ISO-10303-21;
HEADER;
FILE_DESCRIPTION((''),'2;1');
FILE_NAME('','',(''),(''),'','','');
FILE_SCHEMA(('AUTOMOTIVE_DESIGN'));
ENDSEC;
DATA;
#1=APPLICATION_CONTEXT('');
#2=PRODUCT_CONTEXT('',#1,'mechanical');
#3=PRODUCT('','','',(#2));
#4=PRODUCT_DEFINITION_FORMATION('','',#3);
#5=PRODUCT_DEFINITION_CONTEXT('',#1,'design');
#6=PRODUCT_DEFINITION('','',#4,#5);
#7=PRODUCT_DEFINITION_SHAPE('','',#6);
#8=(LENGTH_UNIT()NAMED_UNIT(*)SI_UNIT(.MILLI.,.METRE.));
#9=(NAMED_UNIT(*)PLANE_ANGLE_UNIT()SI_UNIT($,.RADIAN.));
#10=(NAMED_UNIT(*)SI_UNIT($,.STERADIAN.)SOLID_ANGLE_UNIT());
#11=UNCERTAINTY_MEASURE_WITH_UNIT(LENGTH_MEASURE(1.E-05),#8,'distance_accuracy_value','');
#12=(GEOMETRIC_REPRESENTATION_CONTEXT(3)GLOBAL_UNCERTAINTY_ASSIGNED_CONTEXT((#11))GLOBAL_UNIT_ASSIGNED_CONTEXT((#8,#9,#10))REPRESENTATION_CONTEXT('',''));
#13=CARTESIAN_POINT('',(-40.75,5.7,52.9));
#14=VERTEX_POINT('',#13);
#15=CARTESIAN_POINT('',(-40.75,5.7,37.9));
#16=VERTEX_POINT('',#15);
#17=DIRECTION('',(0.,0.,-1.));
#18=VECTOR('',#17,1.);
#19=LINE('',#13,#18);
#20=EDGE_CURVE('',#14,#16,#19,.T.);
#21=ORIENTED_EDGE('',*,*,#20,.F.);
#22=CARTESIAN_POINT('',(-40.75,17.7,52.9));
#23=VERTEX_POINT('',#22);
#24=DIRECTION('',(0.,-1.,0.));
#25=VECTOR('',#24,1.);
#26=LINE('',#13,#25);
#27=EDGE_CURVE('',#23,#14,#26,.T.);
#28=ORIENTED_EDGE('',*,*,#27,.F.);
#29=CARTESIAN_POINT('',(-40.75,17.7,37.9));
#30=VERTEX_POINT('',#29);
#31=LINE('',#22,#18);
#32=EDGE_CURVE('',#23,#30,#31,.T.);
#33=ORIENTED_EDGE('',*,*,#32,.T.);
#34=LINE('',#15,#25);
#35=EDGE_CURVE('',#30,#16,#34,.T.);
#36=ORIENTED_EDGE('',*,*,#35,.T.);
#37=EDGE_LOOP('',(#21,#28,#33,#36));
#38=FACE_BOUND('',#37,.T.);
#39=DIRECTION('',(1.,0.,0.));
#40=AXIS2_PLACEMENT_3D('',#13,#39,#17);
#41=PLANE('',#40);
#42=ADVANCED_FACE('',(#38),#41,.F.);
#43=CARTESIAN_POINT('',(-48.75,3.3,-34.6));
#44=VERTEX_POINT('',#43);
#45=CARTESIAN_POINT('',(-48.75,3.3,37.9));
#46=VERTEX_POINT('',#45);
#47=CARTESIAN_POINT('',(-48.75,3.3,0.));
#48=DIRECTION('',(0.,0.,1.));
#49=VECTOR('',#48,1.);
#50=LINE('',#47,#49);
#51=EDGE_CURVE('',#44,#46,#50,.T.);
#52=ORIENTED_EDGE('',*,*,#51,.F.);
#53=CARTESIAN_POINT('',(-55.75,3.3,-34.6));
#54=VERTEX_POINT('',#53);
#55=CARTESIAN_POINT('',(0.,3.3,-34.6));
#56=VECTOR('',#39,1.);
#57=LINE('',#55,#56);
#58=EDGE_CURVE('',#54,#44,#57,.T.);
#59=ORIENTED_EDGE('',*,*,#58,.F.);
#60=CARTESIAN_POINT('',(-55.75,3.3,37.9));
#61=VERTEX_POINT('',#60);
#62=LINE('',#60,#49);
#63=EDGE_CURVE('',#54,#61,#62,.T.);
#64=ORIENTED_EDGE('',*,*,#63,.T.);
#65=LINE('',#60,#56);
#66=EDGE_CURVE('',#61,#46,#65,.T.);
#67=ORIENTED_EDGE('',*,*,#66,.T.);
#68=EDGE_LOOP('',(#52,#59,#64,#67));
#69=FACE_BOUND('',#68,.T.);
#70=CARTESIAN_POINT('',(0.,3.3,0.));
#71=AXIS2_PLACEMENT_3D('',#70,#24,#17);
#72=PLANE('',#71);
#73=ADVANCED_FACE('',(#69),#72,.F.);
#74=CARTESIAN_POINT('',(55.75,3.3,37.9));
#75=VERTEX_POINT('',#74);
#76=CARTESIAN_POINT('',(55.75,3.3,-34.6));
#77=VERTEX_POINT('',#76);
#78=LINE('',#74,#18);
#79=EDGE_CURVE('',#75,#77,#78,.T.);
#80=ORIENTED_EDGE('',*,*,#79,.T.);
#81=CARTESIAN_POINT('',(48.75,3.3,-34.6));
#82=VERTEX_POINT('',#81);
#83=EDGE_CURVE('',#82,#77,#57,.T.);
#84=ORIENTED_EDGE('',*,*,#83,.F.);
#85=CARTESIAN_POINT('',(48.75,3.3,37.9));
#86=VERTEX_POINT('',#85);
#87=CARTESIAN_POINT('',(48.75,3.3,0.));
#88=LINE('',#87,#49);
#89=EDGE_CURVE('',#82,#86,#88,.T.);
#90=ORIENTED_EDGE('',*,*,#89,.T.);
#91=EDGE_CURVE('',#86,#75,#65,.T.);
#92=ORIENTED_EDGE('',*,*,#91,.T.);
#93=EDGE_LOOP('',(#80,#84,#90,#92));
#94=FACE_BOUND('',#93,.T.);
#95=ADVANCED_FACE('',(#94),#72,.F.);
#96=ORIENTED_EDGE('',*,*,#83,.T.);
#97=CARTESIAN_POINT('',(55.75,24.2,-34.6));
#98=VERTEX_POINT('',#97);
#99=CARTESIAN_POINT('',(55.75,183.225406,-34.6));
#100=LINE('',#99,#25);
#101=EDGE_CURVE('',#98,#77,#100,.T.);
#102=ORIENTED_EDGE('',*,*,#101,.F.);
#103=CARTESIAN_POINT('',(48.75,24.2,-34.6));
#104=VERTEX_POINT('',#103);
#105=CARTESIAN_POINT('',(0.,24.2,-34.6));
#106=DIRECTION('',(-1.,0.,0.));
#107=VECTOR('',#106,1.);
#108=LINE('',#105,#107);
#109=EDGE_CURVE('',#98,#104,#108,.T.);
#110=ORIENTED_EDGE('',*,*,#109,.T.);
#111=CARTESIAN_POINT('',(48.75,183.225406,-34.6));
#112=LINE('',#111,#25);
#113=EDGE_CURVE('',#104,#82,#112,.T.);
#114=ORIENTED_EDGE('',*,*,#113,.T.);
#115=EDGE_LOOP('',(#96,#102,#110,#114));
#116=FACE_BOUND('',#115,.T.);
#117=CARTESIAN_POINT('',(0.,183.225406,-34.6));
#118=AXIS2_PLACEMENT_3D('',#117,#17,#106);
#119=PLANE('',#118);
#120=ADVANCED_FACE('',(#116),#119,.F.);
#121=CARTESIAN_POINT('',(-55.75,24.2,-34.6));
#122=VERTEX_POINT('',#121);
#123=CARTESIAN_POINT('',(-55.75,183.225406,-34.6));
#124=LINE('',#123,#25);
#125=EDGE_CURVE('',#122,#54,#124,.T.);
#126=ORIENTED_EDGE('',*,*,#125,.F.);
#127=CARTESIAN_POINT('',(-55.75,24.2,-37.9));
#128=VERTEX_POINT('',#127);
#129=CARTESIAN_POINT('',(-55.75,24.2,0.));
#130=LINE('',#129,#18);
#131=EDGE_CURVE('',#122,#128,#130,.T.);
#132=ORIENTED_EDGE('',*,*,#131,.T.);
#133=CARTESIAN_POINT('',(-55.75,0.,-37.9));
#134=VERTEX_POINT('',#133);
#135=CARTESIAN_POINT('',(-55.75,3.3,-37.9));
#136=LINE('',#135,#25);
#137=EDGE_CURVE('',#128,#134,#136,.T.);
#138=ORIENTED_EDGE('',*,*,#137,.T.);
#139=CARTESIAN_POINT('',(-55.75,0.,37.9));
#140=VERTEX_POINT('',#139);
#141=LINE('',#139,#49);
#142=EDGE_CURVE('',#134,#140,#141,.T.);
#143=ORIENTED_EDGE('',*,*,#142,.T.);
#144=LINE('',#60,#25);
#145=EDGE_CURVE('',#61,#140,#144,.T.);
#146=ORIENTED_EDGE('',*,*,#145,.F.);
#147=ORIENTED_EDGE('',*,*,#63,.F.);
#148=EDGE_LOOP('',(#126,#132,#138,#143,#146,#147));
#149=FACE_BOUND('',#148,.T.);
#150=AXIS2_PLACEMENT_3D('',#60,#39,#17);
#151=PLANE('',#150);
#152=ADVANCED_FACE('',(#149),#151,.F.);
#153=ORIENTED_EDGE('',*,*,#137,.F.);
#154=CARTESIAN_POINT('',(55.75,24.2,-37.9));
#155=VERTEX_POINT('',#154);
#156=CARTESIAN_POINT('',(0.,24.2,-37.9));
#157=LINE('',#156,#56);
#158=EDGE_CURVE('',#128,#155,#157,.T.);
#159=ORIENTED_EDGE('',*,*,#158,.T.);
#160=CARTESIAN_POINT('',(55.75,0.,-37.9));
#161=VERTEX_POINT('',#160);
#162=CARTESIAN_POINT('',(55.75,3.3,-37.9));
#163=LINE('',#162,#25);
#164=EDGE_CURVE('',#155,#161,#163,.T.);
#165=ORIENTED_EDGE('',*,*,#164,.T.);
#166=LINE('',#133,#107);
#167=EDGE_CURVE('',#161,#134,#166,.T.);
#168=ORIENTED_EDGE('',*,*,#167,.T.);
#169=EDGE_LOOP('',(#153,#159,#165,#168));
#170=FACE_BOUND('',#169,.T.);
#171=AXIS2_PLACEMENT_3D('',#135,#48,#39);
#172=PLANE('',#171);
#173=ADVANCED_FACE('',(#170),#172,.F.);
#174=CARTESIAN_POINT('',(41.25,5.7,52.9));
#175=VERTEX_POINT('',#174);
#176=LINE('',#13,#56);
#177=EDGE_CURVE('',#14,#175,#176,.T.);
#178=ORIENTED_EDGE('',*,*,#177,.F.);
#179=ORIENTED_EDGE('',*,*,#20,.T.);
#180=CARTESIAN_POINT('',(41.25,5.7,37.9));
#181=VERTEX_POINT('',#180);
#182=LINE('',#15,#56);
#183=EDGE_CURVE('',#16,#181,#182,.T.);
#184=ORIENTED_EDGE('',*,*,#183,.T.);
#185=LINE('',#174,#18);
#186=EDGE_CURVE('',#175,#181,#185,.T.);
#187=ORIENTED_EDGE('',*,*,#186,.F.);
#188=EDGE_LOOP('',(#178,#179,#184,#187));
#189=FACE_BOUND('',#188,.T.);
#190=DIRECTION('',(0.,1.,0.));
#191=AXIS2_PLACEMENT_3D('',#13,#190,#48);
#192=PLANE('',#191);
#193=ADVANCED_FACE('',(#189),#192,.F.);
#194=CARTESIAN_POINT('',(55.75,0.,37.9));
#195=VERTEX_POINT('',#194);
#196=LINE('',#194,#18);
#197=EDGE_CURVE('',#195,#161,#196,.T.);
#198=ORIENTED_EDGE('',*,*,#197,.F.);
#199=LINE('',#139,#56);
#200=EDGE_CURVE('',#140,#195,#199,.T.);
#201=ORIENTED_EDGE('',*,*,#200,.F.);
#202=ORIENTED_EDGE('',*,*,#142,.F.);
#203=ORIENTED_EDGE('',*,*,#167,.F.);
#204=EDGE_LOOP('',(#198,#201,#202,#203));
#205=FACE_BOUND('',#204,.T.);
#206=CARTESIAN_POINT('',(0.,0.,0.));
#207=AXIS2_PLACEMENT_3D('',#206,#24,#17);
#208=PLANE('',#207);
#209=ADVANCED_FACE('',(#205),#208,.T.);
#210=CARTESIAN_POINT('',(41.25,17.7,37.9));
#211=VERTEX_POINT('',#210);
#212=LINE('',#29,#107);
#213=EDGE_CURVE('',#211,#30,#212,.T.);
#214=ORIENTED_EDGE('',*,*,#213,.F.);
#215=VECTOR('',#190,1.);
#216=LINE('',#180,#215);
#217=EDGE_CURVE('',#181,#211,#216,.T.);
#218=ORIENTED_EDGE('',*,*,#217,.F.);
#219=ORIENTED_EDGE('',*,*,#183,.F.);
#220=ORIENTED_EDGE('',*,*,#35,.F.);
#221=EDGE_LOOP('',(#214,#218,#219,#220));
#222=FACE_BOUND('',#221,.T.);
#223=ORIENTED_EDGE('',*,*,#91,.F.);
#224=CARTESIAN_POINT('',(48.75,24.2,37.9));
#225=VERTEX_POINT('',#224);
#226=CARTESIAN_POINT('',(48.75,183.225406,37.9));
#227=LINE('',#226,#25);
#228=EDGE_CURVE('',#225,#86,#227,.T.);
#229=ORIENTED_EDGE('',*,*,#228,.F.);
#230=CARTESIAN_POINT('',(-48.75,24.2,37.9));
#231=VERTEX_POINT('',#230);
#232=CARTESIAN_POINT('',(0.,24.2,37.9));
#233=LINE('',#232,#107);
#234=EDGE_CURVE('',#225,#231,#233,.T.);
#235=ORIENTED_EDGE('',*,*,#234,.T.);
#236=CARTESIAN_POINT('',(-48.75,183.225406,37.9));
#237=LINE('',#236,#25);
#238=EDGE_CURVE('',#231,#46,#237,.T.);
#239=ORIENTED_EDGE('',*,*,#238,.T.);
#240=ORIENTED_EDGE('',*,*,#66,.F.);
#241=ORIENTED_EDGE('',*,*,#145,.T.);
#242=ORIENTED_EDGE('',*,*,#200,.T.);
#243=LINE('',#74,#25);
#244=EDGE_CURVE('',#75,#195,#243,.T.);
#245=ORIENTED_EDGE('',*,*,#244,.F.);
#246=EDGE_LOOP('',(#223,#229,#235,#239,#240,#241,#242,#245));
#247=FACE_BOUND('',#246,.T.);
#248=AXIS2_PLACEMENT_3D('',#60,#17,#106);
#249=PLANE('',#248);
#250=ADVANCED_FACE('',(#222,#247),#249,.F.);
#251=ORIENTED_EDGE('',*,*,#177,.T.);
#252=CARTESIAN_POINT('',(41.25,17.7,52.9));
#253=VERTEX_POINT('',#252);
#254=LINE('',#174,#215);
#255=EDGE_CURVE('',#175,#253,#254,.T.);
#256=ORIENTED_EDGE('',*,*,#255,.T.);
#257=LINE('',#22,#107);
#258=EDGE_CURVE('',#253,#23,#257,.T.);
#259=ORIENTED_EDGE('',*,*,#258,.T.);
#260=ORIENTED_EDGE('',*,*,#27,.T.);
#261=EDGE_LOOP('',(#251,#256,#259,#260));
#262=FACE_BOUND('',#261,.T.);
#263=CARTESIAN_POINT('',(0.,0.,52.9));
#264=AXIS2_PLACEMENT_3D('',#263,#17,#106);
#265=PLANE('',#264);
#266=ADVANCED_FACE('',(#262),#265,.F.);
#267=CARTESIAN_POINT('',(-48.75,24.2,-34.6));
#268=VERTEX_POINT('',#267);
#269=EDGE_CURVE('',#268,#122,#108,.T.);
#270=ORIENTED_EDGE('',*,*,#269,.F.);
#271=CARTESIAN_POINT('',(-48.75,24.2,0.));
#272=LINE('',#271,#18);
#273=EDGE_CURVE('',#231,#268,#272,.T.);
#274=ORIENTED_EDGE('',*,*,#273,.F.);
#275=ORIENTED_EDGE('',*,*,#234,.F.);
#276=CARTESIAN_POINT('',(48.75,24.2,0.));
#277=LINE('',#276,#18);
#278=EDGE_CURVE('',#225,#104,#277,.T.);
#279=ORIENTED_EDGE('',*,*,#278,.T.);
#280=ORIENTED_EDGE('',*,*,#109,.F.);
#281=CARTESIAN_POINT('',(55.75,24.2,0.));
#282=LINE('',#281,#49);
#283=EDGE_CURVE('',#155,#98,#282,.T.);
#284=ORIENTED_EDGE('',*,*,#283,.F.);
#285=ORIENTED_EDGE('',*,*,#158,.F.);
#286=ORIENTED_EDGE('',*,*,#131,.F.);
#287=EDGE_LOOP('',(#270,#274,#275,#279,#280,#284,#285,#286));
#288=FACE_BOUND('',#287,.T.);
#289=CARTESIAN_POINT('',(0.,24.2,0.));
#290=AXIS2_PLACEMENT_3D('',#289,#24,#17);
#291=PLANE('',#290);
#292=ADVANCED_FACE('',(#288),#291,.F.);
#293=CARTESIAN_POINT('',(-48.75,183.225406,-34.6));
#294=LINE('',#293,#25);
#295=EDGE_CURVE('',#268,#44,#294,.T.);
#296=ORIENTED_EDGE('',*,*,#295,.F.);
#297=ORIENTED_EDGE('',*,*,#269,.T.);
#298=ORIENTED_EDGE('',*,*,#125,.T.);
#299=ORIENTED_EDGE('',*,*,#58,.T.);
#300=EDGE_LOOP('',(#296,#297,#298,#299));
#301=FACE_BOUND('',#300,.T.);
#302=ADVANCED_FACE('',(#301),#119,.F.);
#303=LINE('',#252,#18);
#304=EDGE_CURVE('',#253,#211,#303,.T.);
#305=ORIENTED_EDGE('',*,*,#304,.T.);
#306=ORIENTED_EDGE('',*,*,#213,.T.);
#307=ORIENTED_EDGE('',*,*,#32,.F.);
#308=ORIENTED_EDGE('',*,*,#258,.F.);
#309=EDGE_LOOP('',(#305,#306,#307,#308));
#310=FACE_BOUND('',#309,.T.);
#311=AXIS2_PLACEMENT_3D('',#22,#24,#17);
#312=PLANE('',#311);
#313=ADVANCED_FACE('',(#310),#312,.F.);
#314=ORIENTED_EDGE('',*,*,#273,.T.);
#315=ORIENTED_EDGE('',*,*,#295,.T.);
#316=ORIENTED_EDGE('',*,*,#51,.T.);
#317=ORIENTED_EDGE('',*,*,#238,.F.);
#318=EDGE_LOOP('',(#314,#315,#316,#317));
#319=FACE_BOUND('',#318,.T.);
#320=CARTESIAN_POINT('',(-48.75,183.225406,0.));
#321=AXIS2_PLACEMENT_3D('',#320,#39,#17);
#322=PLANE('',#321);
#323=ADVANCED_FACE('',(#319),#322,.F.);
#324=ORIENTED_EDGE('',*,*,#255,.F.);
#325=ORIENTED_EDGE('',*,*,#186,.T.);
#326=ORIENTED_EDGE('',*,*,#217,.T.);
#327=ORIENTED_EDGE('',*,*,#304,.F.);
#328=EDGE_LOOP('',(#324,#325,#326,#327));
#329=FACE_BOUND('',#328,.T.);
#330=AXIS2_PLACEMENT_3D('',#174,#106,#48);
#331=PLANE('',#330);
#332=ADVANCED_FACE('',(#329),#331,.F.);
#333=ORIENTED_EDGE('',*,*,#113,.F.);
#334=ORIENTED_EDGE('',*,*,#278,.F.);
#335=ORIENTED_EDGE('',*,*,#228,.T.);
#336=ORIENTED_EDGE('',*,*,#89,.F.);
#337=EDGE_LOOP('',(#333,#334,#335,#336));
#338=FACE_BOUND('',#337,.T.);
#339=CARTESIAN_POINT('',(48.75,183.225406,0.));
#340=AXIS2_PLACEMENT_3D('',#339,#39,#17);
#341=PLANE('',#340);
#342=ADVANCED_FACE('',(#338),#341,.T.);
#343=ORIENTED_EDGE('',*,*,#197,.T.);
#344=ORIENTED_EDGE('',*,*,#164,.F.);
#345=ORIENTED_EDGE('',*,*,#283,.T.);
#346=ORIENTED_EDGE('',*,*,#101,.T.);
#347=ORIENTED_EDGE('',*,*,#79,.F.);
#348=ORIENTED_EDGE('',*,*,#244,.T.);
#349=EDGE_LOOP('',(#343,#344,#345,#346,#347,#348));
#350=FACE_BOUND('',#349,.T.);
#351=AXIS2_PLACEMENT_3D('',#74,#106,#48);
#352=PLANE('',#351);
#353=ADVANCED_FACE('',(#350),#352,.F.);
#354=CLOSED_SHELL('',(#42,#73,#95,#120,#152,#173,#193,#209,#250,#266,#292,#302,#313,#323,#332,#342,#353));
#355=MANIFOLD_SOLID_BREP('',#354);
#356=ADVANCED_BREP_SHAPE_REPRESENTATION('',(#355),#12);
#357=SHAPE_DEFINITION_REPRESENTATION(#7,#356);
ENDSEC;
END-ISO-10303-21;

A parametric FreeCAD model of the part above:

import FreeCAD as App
import Part
import Sketcher

doc = App.newDocument("Part")
body = doc.addObject("PartDesign::Body", "Body")

# Sketch on XZ plane
sketch1 = doc.addObject("Sketcher::SketchObject", "Sketch")
body.addObject(sketch1)
sketch1.AttachmentSupport = (doc.XZ_Plane, [""])
sketch1.MapMode = "FlatFace"
sketch1.addGeometry([
    Part.LineSegment(App.Vector(-56, -38, 0), App.Vector(-56, 38, 0)),
    Part.LineSegment(App.Vector(-56, 38, 0), App.Vector(56, 38, 0)),
    Part.LineSegment(App.Vector(56, 38, 0), App.Vector(56, -38, 0)),
    Part.LineSegment(App.Vector(56, -38, 0), App.Vector(-56, -38, 0)),
], False)
sketch1.addConstraint([
    Sketcher.Constraint("Coincident", 0, 2, 1, 1),
    Sketcher.Constraint("Coincident", 1, 2, 2, 1),
    Sketcher.Constraint("Coincident", 2, 2, 3, 1),
    Sketcher.Constraint("Coincident", 3, 2, 0, 1),
    Sketcher.Constraint("Vertical", 0),
    Sketcher.Constraint("Horizontal", 1),
    Sketcher.Constraint("Vertical", 2),
    Sketcher.Constraint("Horizontal", 3),
    Sketcher.Constraint("Symmetric", 0, 2, 2, 2, -1, 1),
    Sketcher.Constraint("DistanceX", 1, 1, 1, 2, 111.5),
    Sketcher.Constraint("DistanceY", 0, 1, 0, 2, 75.8),
])
pad1 = doc.addObject("PartDesign::Pad", "Pad")
body.addObject(pad1)
pad1.Profile = sketch1
pad1.Length = 3.3
pad1.Reversed = True

# Sketch on XZ plane
sketch2 = doc.addObject("Sketcher::SketchObject", "Sketch001")
body.addObject(sketch2)
sketch2.AttachmentSupport = (doc.XZ_Plane, [""])
sketch2.MapMode = "FlatFace"
sketch2.AttachmentOffset = App.Placement(App.Vector(0, 0, -3.3), App.Rotation())
sketch2.addGeometry([
    Part.LineSegment(App.Vector(-55.8, -37.9, 0), App.Vector(-55.8, -34.6, 0)),  # 0
    Part.LineSegment(App.Vector(-55.8, -34.6, 0), App.Vector(-48.8, -34.6, 0)),  # 1
    Part.LineSegment(App.Vector(-48.8, -34.6, 0), App.Vector(-48.8, 37.9, 0)),  # 2
    Part.LineSegment(App.Vector(-48.8, 37.9, 0), App.Vector(48.8, 37.9, 0)),  # 3
    Part.LineSegment(App.Vector(48.8, 37.9, 0), App.Vector(48.8, -34.6, 0)),  # 4
    Part.LineSegment(App.Vector(48.8, -34.6, 0), App.Vector(55.8, -34.6, 0)),  # 5
    Part.LineSegment(App.Vector(55.8, -34.6, 0), App.Vector(55.8, -37.9, 0)),  # 6
    Part.LineSegment(App.Vector(55.8, -37.9, 0), App.Vector(-55.8, -37.9, 0)),  # 7
], False)
sketch2.addConstraint([
    Sketcher.Constraint("Coincident", 0, 2, 1, 1),
    Sketcher.Constraint("Coincident", 1, 2, 2, 1),
    Sketcher.Constraint("Coincident", 2, 2, 3, 1),
    Sketcher.Constraint("Coincident", 3, 2, 4, 1),
    Sketcher.Constraint("Coincident", 4, 2, 5, 1),
    Sketcher.Constraint("Coincident", 5, 2, 6, 1),
    Sketcher.Constraint("Coincident", 6, 2, 7, 1),
    Sketcher.Constraint("Coincident", 7, 2, 0, 1),
    Sketcher.Constraint("Vertical", 0),
    Sketcher.Constraint("Horizontal", 1),
    Sketcher.Constraint("Vertical", 2),
    Sketcher.Constraint("Horizontal", 3),
    Sketcher.Constraint("Vertical", 4),
    Sketcher.Constraint("Horizontal", 5),
    Sketcher.Constraint("Vertical", 6),
    Sketcher.Constraint("Horizontal", 7),
    Sketcher.Constraint("Symmetric", 1, 2, 4, 2, -2),
    Sketcher.Constraint("Equal", 1, 5),
    Sketcher.Constraint("DistanceX", 1, 1, 1, 2, 7.0),
    Sketcher.Constraint("DistanceX", 3, 1, 3, 2, 97.5),
    Sketcher.Constraint("DistanceY", 0, 1, 0, 2, 3.3),
    Sketcher.Constraint("DistanceY", 2, 1, 2, 2, 72.5),
    Sketcher.Constraint("DistanceY", 0, 2, -1, 1, 34.6),
])
pad2 = doc.addObject("PartDesign::Pad", "Pad001")
body.addObject(pad2)
pad2.Profile = sketch2
pad2.Length = 20.9
pad2.Reversed = True

# Sketch on XY plane
sketch3 = doc.addObject("Sketcher::SketchObject", "Sketch002")
body.addObject(sketch3)
sketch3.AttachmentSupport = (doc.XY_Plane, [""])
sketch3.MapMode = "FlatFace"
sketch3.AttachmentOffset = App.Placement(App.Vector(0, 0, 37.9), App.Rotation())
sketch3.addGeometry([
    Part.LineSegment(App.Vector(-41, 18, 0), App.Vector(-41, 6, 0)),
    Part.LineSegment(App.Vector(-41, 6, 0), App.Vector(41, 6, 0)),
    Part.LineSegment(App.Vector(41, 6, 0), App.Vector(41, 18, 0)),
    Part.LineSegment(App.Vector(41, 18, 0), App.Vector(-41, 18, 0)),
], False)
sketch3.addConstraint([
    Sketcher.Constraint("Coincident", 0, 2, 1, 1),
    Sketcher.Constraint("Coincident", 1, 2, 2, 1),
    Sketcher.Constraint("Coincident", 2, 2, 3, 1),
    Sketcher.Constraint("Coincident", 3, 2, 0, 1),
    Sketcher.Constraint("Vertical", 0),
    Sketcher.Constraint("Horizontal", 1),
    Sketcher.Constraint("Vertical", 2),
    Sketcher.Constraint("Horizontal", 3),
    Sketcher.Constraint("DistanceX", 1, 1, 1, 2, 82.0),
    Sketcher.Constraint("DistanceY", 0, 2, 0, 1, 12.0),
    Sketcher.Constraint("DistanceY", -1, 1, 0, 2, 5.7),
    Sketcher.Constraint("DistanceX", 0, 2, -1, 1, 40.75),
])
pad3 = doc.addObject("PartDesign::Pad", "Pad002")
body.addObject(pad3)
pad3.Profile = sketch3
pad3.Length = 15

doc.recompute()
